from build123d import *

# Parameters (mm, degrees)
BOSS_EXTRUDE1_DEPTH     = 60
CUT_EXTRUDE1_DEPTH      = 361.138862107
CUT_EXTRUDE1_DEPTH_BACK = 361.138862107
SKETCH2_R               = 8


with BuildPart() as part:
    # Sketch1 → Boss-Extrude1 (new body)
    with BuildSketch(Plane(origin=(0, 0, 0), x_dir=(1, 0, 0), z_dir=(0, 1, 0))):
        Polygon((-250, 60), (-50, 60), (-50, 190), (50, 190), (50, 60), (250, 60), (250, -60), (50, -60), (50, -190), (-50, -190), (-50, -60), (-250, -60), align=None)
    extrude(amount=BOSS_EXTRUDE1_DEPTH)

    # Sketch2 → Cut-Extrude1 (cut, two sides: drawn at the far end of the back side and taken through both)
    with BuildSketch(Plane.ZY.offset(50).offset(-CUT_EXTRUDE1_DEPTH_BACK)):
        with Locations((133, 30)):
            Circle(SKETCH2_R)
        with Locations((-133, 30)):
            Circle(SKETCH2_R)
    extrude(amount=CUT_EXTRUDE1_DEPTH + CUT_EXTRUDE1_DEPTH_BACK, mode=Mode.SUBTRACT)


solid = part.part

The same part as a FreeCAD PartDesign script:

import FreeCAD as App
import Part
import Sketcher

V = App.Vector
Q = App.Units.Quantity


def add_polygon(sketch, points):
    """Adds a closed chain of lines whose ends are joined by coincident constraints."""
    first, n = sketch.GeometryCount, len(points)
    for a, b in zip(points, points[1:] + points[:1]):
        sketch.addGeometry(Part.LineSegment(App.Vector(*a, 0), App.Vector(*b, 0)), False)
    for i in range(n):
        sketch.addConstraint(Sketcher.Constraint("Coincident", first + i, 2, first + (i + 1) % n, 1))

doc = App.newDocument("Part")
body = doc.addObject("PartDesign::Body", "Body")

# Sketch on XZ plane
sketch1 = body.newObject("Sketcher::SketchObject", "Sketch")
sketch1.AttachmentSupport = (doc.getObject("XZ_Plane"), [""])
sketch1.MapMode = "FlatFace"
add_polygon(sketch1, [(-50, -60), (-250, -60), (-250, 60), (-50, 60), (-50, 190), (50, 190), (50, 60), (250, 60), (250, -60), (50, -60), (50, -190), (-50, -190)])  # lines 0-11
sketch1.addConstraint(Sketcher.Constraint("Horizontal", 0))
sketch1.addConstraint(Sketcher.Constraint("Vertical", 1))
sketch1.addConstraint(Sketcher.Constraint("Horizontal", 2))
sketch1.addConstraint(Sketcher.Constraint("Vertical", 3))
sketch1.addConstraint(Sketcher.Constraint("Horizontal", 4))
sketch1.addConstraint(Sketcher.Constraint("Vertical", 5))
sketch1.addConstraint(Sketcher.Constraint("Horizontal", 6))
sketch1.addConstraint(Sketcher.Constraint("Vertical", 7))
sketch1.addConstraint(Sketcher.Constraint("Horizontal", 8))
sketch1.addConstraint(Sketcher.Constraint("Vertical", 9))
sketch1.addConstraint(Sketcher.Constraint("Horizontal", 10))
sketch1.addConstraint(Sketcher.Constraint("Vertical", 11))
sketch1.addConstraint(Sketcher.Constraint("Symmetric", 0, 2, 6, 2, -1, 1))
sketch1.addConstraint(Sketcher.Constraint("Symmetric", 2, 2, 8, 2, -1, 1))
sketch1.addConstraint(Sketcher.Constraint("Symmetric", 4, 2, 10, 2, -1, 1))
sketch1.addConstraint(Sketcher.Constraint("Symmetric", 2, 2, 5, 2, -2))
sketch1.addConstraint(Sketcher.Constraint("DistanceX", 0, 2, 0, 1, Q("200 mm")))
sketch1.addConstraint(Sketcher.Constraint("DistanceX", 4, 1, 4, 2, Q("100 mm")))
sketch1.addConstraint(Sketcher.Constraint("DistanceY", 1, 1, 1, 2, Q("120 mm")))
sketch1.addConstraint(Sketcher.Constraint("DistanceY", 3, 1, 3, 2, Q("130 mm")))
pad1 = body.newObject("PartDesign::Pad", "Pad")
pad1.Profile = sketch1
pad1.Length = 60
pad1.Reversed = True

# Sketch on YZ plane
sketch2 = body.newObject("Sketcher::SketchObject", "Sketch001")
sketch2.AttachmentSupport = (doc.getObject("YZ_Plane"), [""])
sketch2.MapMode = "FlatFace"
sketch2.AttachmentOffset = App.Placement(V(0, 0, -50), App.Rotation())
sketch2.addGeometry(Part.Circle(V(30, 133, 0), V(0, 0, 1), 8), False)
sketch2.addGeometry(Part.Circle(V(30, -133, 0), V(0, 0, 1), 8), False)
sketch2.addConstraint(Sketcher.Constraint("Equal", 0, 1))
sketch2.addConstraint(Sketcher.Constraint("Symmetric", 0, 3, 1, 3, -1))
sketch2.addConstraint(Sketcher.Constraint("Diameter", 0, Q("16 mm")))
sketch2.addConstraint(Sketcher.Constraint("DistanceX", -1, 1, 0, 3, Q("30 mm")))
sketch2.addConstraint(Sketcher.Constraint("DistanceY", -1, 1, 0, 3, Q("133 mm")))
pocket1 = body.newObject("PartDesign::Pocket", "Pocket")
pocket1.Profile = sketch2
pocket1.Type = "ThroughAll"
pocket1.Midplane = True

doc.recompute()
